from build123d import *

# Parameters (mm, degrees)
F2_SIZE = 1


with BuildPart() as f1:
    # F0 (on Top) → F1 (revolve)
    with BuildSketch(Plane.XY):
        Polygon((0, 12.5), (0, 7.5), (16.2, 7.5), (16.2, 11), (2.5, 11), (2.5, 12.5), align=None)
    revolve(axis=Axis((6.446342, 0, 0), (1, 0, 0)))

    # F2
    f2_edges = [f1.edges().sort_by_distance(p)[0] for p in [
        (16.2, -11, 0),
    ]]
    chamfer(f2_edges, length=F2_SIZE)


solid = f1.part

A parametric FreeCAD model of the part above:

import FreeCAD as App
import Part
import Sketcher


def edges_at(feature, points):
    """Names of the edges that pass closest to the given points."""
    edges = feature.Shape.Edges
    near = lambda p: min(range(len(edges)), key=lambda i: edges[i].distToShape(Part.Vertex(*p))[0])
    return sorted({f"Edge{near(p) + 1}" for p in points})

doc = App.newDocument("Part")
body = doc.addObject("PartDesign::Body", "Body")

# Sketch on XY plane
sketch1 = body.newObject("Sketcher::SketchObject", "Sketch")
sketch1.AttachmentSupport = (doc.getObject("XY_Plane"), [""])
sketch1.MapMode = "FlatFace"
sketch1.addGeometry(Part.LineSegment(App.Vector(0, 12.5, 0), App.Vector(0, 7.5, 0)), False)
sketch1.addGeometry(Part.LineSegment(App.Vector(0, 7.5, 0), App.Vector(16.2, 7.5, 0)), False)
sketch1.addGeometry(Part.LineSegment(App.Vector(16.2, 7.5, 0), App.Vector(16.2, 11, 0)), False)
sketch1.addGeometry(Part.LineSegment(App.Vector(16.2, 11, 0), App.Vector(2.5, 11, 0)), False)
sketch1.addGeometry(Part.LineSegment(App.Vector(2.5, 11, 0), App.Vector(2.5, 12.5, 0)), False)
sketch1.addGeometry(Part.LineSegment(App.Vector(2.5, 12.5, 0), App.Vector(0, 12.5, 0)), False)
sketch1.addConstraint(Sketcher.Constraint("Coincident", 0, 2, 1, 1))
sketch1.addConstraint(Sketcher.Constraint("Coincident", 1, 2, 2, 1))
sketch1.addConstraint(Sketcher.Constraint("Coincident", 2, 2, 3, 1))
sketch1.addConstraint(Sketcher.Constraint("Coincident", 3, 2, 4, 1))
sketch1.addConstraint(Sketcher.Constraint("Coincident", 4, 2, 5, 1))
sketch1.addConstraint(Sketcher.Constraint("Coincident", 5, 2, 0, 1))
sketch1.addConstraint(Sketcher.Constraint("Vertical", 0))
sketch1.addConstraint(Sketcher.Constraint("Horizontal", 1))
sketch1.addConstraint(Sketcher.Constraint("Vertical", 2))
sketch1.addConstraint(Sketcher.Constraint("Horizontal", 3))
sketch1.addConstraint(Sketcher.Constraint("Vertical", 4))
sketch1.addConstraint(Sketcher.Constraint("Horizontal", 5))
sketch1.addConstraint(Sketcher.Constraint("PointOnObject", 0, 2, -2))
sketch1.addConstraint(Sketcher.Constraint("DistanceY", 0, 2, 0, 1, 5.0))
sketch1.addConstraint(Sketcher.Constraint("DistanceX", 1, 1, 1, 2, 16.2))
sketch1.addConstraint(Sketcher.Constraint("DistanceX", 3, 2, 3, 1, 13.7))
sketch1.addConstraint(Sketcher.Constraint("DistanceY", 2, 1, 2, 2, 3.5))
sketch1.addConstraint(Sketcher.Constraint("DistanceY", -1, 1, 2, 2, 11.0))
revolution = body.newObject("PartDesign::Revolution", "Revolution")
revolution.Profile = sketch1
revolution.ReferenceAxis = (sketch1, ["H_Axis"])
revolution.Angle = 360
doc.recompute()

chamfer = body.newObject("PartDesign::Chamfer", "Chamfer")
chamfer.Base = (revolution, edges_at(revolution, [(16.2, -11, 0)]))
chamfer.Size = 1

doc.recompute()
